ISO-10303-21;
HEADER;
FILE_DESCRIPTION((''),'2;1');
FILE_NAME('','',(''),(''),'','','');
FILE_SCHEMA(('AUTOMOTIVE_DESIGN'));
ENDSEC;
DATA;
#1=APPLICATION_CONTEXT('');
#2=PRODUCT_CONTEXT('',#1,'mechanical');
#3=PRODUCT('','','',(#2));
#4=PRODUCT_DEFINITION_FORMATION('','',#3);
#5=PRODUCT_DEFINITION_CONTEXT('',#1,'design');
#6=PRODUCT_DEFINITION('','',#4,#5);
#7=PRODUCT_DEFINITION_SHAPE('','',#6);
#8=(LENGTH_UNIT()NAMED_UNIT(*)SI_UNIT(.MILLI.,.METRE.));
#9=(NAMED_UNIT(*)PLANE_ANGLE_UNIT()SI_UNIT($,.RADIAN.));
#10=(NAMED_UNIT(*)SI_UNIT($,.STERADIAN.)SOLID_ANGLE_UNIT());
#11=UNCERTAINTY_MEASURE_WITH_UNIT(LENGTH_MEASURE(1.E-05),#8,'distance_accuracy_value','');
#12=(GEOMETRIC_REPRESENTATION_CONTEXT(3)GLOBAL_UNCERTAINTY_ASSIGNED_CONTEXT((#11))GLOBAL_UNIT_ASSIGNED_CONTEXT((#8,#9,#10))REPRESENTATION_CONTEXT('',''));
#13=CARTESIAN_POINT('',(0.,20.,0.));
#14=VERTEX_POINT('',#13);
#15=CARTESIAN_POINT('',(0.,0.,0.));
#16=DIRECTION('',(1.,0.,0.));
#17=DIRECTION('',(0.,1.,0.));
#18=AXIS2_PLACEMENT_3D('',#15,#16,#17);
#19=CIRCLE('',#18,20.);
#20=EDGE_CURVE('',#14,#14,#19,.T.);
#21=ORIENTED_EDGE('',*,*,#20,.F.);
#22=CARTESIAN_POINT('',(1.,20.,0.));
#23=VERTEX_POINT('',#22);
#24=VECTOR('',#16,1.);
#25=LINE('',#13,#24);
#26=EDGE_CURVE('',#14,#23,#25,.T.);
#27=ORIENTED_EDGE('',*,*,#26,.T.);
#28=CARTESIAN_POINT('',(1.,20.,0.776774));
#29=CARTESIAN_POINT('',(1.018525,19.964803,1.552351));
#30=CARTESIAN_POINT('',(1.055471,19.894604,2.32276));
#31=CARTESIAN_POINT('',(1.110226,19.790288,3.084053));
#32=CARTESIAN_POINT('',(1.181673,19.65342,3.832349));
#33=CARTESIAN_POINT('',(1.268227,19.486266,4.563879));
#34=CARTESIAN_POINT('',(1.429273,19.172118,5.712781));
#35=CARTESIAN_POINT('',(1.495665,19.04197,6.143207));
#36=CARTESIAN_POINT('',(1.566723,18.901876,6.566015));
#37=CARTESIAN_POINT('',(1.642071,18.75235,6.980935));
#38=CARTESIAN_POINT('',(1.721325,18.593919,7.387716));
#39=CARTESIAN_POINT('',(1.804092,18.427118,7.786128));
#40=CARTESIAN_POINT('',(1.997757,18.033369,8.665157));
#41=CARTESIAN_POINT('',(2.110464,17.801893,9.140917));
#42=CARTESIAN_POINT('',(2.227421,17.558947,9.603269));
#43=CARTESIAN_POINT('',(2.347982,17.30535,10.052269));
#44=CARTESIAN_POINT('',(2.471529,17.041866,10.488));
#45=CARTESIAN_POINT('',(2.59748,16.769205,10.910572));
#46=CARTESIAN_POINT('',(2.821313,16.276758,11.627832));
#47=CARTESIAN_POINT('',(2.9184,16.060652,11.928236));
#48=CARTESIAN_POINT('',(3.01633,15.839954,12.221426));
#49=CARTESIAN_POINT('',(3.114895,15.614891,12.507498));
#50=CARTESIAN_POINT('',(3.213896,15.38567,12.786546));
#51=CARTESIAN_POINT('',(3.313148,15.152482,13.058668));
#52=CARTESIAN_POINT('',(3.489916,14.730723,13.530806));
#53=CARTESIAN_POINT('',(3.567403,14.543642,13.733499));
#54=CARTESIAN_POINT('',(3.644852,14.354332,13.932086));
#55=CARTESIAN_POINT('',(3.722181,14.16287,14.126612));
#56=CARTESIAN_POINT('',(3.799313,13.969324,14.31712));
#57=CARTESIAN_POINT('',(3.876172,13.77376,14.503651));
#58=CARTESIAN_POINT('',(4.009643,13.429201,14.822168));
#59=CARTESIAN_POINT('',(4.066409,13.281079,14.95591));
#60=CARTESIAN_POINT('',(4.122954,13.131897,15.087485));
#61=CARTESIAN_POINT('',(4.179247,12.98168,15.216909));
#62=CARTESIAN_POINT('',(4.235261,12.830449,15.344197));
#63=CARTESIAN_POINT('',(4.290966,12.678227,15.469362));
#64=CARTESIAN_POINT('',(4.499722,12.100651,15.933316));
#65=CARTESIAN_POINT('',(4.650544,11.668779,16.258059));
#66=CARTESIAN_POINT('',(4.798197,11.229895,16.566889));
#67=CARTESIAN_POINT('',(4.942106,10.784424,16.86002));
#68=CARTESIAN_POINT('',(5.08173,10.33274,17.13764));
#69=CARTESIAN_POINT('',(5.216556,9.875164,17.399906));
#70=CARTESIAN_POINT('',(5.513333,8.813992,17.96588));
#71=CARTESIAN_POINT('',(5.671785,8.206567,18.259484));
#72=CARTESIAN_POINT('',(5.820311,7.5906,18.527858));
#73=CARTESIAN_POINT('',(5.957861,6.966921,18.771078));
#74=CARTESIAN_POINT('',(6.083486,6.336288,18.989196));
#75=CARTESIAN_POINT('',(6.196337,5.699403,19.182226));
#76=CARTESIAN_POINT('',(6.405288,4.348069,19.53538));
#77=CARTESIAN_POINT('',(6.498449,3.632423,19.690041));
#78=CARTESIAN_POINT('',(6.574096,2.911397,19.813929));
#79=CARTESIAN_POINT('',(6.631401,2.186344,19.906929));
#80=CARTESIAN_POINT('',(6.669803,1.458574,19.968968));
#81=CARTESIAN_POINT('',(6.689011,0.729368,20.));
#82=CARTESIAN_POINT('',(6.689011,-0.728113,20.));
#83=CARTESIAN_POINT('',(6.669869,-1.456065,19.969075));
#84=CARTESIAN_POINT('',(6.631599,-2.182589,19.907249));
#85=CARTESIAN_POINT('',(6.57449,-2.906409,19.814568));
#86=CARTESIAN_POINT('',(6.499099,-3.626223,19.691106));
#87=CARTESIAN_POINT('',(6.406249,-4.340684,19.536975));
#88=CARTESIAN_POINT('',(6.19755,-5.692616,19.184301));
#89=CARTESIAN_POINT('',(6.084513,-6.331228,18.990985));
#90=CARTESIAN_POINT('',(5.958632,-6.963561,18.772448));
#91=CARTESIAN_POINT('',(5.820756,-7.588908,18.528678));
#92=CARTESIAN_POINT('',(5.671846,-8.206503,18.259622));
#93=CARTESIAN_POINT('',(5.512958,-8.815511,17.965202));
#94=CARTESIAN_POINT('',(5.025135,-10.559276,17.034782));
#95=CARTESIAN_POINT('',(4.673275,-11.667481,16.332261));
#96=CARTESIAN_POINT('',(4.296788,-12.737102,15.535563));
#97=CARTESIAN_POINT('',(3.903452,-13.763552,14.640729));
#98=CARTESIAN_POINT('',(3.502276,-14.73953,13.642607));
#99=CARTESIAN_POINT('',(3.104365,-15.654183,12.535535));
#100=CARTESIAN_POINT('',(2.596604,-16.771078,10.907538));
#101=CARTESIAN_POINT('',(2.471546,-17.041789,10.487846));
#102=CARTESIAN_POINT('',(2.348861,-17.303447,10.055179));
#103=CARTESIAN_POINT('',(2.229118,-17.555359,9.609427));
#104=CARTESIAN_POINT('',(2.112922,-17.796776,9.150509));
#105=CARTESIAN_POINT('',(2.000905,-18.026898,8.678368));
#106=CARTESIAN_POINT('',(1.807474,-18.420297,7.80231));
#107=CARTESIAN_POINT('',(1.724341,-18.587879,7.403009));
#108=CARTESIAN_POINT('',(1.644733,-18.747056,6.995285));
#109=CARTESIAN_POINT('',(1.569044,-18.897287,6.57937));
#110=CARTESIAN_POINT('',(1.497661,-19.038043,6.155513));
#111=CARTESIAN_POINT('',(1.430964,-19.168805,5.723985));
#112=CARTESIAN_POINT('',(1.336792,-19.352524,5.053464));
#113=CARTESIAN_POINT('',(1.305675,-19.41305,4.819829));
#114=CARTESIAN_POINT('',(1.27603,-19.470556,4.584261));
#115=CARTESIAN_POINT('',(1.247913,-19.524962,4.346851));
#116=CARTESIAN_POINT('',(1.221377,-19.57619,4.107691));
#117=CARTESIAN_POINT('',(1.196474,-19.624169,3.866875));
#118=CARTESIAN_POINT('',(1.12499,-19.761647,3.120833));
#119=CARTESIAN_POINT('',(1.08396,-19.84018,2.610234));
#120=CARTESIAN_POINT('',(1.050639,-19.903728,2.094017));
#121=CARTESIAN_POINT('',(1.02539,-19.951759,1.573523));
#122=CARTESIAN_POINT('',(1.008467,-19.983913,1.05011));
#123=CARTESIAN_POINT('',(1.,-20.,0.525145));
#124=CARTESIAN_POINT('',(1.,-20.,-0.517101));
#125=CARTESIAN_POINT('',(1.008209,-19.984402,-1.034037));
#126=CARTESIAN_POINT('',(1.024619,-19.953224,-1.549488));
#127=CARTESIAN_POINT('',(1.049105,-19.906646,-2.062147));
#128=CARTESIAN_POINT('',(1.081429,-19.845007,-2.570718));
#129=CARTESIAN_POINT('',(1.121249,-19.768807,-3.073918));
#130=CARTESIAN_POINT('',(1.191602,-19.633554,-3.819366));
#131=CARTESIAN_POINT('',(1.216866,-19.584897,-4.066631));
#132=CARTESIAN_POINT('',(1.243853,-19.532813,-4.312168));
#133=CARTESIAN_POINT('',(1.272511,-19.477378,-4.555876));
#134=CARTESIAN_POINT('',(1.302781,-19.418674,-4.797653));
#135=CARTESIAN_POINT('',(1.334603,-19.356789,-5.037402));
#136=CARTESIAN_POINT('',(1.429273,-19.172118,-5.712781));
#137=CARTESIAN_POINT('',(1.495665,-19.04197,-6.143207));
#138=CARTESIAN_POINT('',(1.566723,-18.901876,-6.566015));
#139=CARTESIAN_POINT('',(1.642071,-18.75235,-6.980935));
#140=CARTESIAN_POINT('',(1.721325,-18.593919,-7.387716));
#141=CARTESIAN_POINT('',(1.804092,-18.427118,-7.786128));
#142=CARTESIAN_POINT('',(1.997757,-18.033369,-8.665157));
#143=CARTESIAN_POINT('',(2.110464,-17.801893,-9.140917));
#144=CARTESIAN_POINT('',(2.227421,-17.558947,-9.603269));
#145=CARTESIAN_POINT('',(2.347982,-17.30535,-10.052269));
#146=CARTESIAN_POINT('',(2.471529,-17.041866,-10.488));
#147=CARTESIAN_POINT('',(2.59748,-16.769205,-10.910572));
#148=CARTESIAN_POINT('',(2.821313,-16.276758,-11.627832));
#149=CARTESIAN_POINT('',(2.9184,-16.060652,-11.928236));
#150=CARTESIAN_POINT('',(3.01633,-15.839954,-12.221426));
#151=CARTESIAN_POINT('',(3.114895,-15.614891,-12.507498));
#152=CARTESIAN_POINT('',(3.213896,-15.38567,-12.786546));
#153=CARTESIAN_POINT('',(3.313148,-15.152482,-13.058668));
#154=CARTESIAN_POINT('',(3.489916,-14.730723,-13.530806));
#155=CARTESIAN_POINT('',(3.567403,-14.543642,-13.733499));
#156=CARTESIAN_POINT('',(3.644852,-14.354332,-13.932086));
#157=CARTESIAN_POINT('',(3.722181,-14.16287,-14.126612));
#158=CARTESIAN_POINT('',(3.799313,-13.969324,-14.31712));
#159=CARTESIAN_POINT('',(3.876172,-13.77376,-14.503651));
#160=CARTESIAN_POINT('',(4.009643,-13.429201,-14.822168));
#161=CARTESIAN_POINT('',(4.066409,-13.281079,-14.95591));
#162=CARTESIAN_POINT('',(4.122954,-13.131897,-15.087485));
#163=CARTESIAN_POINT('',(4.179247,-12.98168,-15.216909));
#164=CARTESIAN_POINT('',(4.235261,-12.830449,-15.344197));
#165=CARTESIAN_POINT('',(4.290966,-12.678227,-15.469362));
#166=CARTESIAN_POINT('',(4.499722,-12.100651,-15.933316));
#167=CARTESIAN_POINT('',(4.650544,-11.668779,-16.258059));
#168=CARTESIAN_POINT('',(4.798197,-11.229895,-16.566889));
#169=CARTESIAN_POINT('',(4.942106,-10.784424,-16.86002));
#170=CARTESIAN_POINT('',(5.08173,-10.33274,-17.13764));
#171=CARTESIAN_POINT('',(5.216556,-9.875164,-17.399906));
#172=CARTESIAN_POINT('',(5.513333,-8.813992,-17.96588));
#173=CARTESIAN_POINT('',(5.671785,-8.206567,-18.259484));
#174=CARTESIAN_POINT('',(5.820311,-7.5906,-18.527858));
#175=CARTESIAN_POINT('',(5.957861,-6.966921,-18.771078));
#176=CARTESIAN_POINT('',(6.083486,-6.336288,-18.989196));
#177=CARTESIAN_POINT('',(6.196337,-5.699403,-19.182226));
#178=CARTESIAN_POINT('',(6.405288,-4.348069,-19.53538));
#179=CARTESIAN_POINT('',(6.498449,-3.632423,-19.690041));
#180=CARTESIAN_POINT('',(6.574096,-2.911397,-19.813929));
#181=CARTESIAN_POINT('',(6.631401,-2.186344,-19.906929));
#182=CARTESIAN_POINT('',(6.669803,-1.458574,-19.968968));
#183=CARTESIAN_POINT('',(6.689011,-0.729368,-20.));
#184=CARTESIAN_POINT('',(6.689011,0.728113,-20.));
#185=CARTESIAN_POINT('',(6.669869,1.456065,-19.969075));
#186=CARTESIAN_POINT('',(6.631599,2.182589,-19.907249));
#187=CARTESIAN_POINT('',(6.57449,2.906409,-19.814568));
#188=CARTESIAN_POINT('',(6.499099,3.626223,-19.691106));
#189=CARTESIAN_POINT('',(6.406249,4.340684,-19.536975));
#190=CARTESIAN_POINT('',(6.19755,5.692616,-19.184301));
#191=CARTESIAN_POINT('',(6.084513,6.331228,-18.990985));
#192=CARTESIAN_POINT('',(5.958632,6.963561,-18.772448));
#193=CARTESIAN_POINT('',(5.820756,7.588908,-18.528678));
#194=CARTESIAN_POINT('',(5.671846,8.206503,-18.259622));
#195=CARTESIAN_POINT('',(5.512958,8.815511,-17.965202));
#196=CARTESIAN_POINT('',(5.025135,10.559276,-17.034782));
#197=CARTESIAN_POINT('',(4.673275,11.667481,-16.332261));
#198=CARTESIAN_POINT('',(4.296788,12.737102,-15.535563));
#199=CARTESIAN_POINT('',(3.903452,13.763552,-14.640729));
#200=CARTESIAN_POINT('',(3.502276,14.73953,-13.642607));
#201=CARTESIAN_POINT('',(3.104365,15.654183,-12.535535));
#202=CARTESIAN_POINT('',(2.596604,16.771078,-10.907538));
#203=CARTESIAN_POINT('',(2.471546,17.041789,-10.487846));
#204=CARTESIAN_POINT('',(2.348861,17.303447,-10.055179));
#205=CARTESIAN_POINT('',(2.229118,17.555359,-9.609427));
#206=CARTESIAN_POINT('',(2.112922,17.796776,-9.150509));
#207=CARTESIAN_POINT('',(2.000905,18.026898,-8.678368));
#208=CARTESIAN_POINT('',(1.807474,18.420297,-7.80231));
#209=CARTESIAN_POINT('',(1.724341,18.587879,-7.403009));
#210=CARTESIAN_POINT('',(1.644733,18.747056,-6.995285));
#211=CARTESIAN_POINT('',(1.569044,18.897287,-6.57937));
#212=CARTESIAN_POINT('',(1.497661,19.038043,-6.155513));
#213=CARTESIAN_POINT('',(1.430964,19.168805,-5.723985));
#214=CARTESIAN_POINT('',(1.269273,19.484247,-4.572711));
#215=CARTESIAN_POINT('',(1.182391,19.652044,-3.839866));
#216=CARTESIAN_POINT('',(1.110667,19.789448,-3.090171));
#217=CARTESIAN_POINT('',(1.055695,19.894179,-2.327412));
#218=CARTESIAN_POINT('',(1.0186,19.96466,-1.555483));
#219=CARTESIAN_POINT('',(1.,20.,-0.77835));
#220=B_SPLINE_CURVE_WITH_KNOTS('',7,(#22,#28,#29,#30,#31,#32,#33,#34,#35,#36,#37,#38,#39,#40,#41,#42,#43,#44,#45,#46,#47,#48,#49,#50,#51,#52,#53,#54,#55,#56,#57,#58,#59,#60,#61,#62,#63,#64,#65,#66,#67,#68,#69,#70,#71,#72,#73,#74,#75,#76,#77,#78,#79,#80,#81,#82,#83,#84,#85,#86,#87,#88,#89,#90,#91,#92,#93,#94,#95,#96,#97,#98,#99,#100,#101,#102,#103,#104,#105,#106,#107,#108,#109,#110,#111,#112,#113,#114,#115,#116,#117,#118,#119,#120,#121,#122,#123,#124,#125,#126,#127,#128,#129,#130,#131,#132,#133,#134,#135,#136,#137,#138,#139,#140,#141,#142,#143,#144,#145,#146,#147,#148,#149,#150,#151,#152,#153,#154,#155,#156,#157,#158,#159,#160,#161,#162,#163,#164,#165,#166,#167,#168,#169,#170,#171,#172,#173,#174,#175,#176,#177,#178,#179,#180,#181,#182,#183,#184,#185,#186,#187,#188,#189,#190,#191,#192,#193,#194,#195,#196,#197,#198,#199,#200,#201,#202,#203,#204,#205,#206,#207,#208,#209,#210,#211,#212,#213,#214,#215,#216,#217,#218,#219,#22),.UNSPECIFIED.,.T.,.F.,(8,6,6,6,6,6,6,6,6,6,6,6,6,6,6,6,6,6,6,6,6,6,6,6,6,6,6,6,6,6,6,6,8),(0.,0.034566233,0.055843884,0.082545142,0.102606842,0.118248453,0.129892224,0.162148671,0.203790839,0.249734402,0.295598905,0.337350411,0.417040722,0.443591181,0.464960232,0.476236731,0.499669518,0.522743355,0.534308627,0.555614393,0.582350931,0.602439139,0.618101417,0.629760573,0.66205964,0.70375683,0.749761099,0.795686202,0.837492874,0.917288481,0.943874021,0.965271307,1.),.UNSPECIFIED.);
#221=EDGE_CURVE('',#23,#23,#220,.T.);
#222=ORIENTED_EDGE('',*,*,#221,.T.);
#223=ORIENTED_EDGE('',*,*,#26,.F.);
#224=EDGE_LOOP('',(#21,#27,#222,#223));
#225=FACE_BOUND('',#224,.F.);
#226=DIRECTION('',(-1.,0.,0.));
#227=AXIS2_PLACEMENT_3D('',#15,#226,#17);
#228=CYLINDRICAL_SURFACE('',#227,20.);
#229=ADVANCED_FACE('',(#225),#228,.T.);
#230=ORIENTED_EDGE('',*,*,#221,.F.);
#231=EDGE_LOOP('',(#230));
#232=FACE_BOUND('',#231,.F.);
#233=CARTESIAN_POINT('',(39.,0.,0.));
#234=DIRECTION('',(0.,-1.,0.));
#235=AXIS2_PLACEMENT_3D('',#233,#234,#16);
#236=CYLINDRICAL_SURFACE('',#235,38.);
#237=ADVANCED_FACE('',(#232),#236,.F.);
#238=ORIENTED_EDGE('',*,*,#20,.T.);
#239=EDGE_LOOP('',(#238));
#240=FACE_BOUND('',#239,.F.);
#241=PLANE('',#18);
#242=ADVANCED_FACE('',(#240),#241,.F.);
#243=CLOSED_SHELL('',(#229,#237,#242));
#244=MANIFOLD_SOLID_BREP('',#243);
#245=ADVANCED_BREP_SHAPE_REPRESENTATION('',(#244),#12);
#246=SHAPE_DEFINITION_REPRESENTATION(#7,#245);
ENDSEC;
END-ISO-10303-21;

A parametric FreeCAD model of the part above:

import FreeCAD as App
import Part
import Sketcher

V = App.Vector
Q = App.Units.Quantity

doc = App.newDocument("Part")
body = doc.addObject("PartDesign::Body", "Body")

# Sketch on YZ plane
sketch1 = doc.addObject("Sketcher::SketchObject", "Sketch")
body.addObject(sketch1)
sketch1.AttachmentSupport = (doc.YZ_Plane, [""])
sketch1.MapMode = "FlatFace"
sketch1.addGeometry(Part.Circle(V(0, 0, 0), V(0, 0, 1), 20), False)
sketch1.addConstraint([
    Sketcher.Constraint("Coincident", 0, 3, -1, 1),
    Sketcher.Constraint("Diameter", 0, Q("40 mm")),
])
pad1 = doc.addObject("PartDesign::Pad", "Pad")
body.addObject(pad1)
pad1.Profile = sketch1
pad1.Length = 10

# Sketch on XZ plane
sketch2 = doc.addObject("Sketcher::SketchObject", "Sketch001")
body.addObject(sketch2)
sketch2.AttachmentSupport = (doc.XZ_Plane, [""])
sketch2.MapMode = "FlatFace"
sketch2.addGeometry(Part.Circle(V(39, 0, 0), V(0, 0, 1), 38), False)
sketch2.addConstraint([
    Sketcher.Constraint("PointOnObject", 0, 3, -1),
    Sketcher.Constraint("Diameter", 0, Q("76 mm")),
    Sketcher.Constraint("DistanceX", -1, 1, 0, 3, Q("39 mm")),
])
pocket1 = doc.addObject("PartDesign::Pocket", "Pocket")
body.addObject(pocket1)
pocket1.Profile = sketch2
pocket1.Length = 60
pocket1.Midplane = True

doc.recompute()
